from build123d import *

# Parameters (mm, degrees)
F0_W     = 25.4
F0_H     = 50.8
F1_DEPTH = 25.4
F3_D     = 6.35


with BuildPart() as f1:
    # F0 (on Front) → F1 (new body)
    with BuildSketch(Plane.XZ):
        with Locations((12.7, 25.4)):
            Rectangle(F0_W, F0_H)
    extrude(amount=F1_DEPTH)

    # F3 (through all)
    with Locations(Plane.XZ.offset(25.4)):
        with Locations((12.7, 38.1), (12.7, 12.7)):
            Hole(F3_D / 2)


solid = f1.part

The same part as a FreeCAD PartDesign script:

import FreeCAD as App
import Part
import Sketcher
Q = App.Units.Quantity

doc = App.newDocument("Part")
body = doc.addObject("PartDesign::Body", "Body")

# Sketch on XZ plane
sketch1 = doc.addObject("Sketcher::SketchObject", "Sketch")
body.addObject(sketch1)
sketch1.AttachmentSupport = (doc.XZ_Plane, [""])
sketch1.MapMode = "FlatFace"
sketch1.addGeometry([
    Part.LineSegment(App.Vector(0, 51, 0), App.Vector(0, 0, 0)),
    Part.LineSegment(App.Vector(0, 0, 0), App.Vector(25, 0, 0)),
    Part.LineSegment(App.Vector(25, 0, 0), App.Vector(25, 51, 0)),
    Part.LineSegment(App.Vector(25, 51, 0), App.Vector(0, 51, 0)),
], False)
sketch1.addConstraint([
    Sketcher.Constraint("Coincident", 0, 2, 1, 1),
    Sketcher.Constraint("Coincident", 1, 2, 2, 1),
    Sketcher.Constraint("Coincident", 2, 2, 3, 1),
    Sketcher.Constraint("Coincident", 3, 2, 0, 1),
    Sketcher.Constraint("Vertical", 0),
    Sketcher.Constraint("Horizontal", 1),
    Sketcher.Constraint("Vertical", 2),
    Sketcher.Constraint("Horizontal", 3),
    Sketcher.Constraint("Coincident", 0, 2, -1, 1),
    Sketcher.Constraint("DistanceX", 1, 1, 1, 2, Q("1 in")),
    Sketcher.Constraint("DistanceY", 0, 2, 0, 1, Q("2 in")),
])
pad1 = doc.addObject("PartDesign::Pad", "Pad")
body.addObject(pad1)
pad1.Profile = sketch1
pad1.Length = Q("1 in")

# Sketch on XZ plane
sketch2 = doc.addObject("Sketcher::SketchObject", "Sketch001")
body.addObject(sketch2)
sketch2.AttachmentSupport = (doc.XZ_Plane, [""])
sketch2.MapMode = "FlatFace"
sketch2.AttachmentOffset = App.Placement(App.Vector(0, 0, 1 * 25.4), App.Rotation())
sketch2.addGeometry([
    Part.Circle(App.Vector(12.7, 38.1, 0), App.Vector(0, 0, 1), 3.2),
    Part.Circle(App.Vector(12.7, 12.7, 0), App.Vector(0, 0, 1), 3.2),
], False)
sketch2.addConstraint([
    Sketcher.Constraint("Equal", 0, 1),
    Sketcher.Constraint("Vertical", 0, 3, 1, 3),
    Sketcher.Constraint("Diameter", 0, Q("0.25 in")),
    Sketcher.Constraint("DistanceY", 1, 3, 0, 3, Q("1 in")),
    Sketcher.Constraint("DistanceX", -1, 1, 0, 3, Q("0.5 in")),
    Sketcher.Constraint("DistanceY", -1, 1, 0, 3, Q("1.5 in")),
])
doc.recompute()
hole = doc.addObject("PartDesign::Hole", "Hole")
body.addObject(hole)
hole.Profile = sketch2
hole.ThreadType = "None"
hole.Diameter = Q("0.25 in")
hole.DepthType = "ThroughAll"

doc.recompute()
